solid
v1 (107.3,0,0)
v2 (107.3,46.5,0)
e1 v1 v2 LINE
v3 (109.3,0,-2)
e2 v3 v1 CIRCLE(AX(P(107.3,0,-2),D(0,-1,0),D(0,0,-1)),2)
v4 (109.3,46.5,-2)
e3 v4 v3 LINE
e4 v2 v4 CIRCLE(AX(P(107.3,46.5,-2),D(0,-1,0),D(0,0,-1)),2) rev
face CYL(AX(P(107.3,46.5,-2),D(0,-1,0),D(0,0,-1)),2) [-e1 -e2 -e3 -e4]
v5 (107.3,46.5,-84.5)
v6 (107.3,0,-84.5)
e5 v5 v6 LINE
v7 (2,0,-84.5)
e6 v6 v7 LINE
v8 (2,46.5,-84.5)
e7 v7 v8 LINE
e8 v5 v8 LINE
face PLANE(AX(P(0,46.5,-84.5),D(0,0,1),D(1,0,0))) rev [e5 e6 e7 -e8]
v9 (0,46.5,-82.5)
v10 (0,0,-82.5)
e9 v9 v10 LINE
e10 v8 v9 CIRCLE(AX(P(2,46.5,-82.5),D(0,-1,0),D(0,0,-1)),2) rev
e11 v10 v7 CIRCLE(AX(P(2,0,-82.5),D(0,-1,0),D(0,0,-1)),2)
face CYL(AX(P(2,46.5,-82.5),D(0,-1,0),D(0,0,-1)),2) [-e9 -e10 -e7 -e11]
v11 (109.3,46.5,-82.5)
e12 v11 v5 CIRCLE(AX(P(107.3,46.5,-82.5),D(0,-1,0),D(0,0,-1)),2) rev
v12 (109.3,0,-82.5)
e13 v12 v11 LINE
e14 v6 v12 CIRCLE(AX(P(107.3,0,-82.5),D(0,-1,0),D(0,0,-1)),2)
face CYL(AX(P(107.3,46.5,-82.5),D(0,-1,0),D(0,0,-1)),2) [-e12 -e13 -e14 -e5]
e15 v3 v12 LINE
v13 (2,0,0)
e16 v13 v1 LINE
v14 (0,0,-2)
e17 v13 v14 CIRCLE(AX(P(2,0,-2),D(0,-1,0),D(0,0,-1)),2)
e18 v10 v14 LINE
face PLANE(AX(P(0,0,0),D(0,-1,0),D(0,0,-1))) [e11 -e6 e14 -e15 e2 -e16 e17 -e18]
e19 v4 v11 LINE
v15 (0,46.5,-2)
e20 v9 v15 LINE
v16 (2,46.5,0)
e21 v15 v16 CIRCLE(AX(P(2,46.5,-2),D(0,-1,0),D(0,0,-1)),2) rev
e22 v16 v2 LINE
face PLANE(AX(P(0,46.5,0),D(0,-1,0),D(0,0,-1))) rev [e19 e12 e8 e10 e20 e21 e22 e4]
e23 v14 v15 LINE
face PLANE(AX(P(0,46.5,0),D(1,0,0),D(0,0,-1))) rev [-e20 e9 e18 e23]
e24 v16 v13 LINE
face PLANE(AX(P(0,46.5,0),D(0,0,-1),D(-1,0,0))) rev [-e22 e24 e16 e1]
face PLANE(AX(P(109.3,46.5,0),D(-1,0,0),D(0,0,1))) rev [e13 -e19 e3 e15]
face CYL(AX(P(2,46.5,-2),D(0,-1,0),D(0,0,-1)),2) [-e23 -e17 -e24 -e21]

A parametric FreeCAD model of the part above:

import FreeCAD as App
import Part
import Sketcher

V = App.Vector


def edges_at(feature, points):
    """Names of the edges that pass closest to the given points."""
    edges = feature.Shape.Edges
    near = lambda p: min(range(len(edges)), key=lambda i: edges[i].distToShape(Part.Vertex(*p))[0])
    return sorted({f"Edge{near(p) + 1}" for p in points})

doc = App.newDocument("Part")
body = doc.addObject("PartDesign::Body", "Body")

# Sketch on XZ plane
sketch1 = body.newObject("Sketcher::SketchObject", "Sketch")
sketch1.AttachmentSupport = (doc.getObject("XZ_Plane"), [""])
sketch1.MapMode = "FlatFace"
sketch1.addGeometry([
    Part.LineSegment(V(0, -84, 0), V(0, 0, 0)),
    Part.LineSegment(V(0, 0, 0), V(109, 0, 0)),
    Part.LineSegment(V(109, 0, 0), V(109, -84, 0)),
    Part.LineSegment(V(109, -84, 0), V(0, -84, 0)),
], False)
sketch1.addConstraint([
    Sketcher.Constraint("Coincident", 0, 2, 1, 1),
    Sketcher.Constraint("Coincident", 1, 2, 2, 1),
    Sketcher.Constraint("Coincident", 2, 2, 3, 1),
    Sketcher.Constraint("Coincident", 3, 2, 0, 1),
    Sketcher.Constraint("Vertical", 0),
    Sketcher.Constraint("Horizontal", 1),
    Sketcher.Constraint("Vertical", 2),
    Sketcher.Constraint("Horizontal", 3),
    Sketcher.Constraint("Coincident", 0, 2, -1, 1),
    Sketcher.Constraint("DistanceX", 1, 1, 1, 2, 109.3),
    Sketcher.Constraint("DistanceY", 0, 1, 0, 2, 84.5),
])
pad1 = body.newObject("PartDesign::Pad", "Pad")
pad1.Profile = sketch1
pad1.Length = 46.5
pad1.Reversed = True
doc.recompute()

fillet = body.newObject("PartDesign::Fillet", "Fillet")
fillet.Base = (pad1, edges_at(pad1, [(109.3, 23.25, 0)]))
fillet.Radius = 2
doc.recompute()

fillet2 = body.newObject("PartDesign::Fillet", "Fillet001")
fillet2.Base = (fillet, edges_at(fillet, [(0, 23.25, 0)]))
fillet2.Radius = 2
doc.recompute()

fillet3 = body.newObject("PartDesign::Fillet", "Fillet002")
fillet3.Base = (fillet2, edges_at(fillet2, [(109.3, 23.25, -84.5)]))
fillet3.Radius = 2
doc.recompute()

fillet4 = body.newObject("PartDesign::Fillet", "Fillet003")
fillet4.Base = (fillet3, edges_at(fillet3, [(0, 23.25, -84.5)]))
fillet4.Radius = 2

doc.recompute()
